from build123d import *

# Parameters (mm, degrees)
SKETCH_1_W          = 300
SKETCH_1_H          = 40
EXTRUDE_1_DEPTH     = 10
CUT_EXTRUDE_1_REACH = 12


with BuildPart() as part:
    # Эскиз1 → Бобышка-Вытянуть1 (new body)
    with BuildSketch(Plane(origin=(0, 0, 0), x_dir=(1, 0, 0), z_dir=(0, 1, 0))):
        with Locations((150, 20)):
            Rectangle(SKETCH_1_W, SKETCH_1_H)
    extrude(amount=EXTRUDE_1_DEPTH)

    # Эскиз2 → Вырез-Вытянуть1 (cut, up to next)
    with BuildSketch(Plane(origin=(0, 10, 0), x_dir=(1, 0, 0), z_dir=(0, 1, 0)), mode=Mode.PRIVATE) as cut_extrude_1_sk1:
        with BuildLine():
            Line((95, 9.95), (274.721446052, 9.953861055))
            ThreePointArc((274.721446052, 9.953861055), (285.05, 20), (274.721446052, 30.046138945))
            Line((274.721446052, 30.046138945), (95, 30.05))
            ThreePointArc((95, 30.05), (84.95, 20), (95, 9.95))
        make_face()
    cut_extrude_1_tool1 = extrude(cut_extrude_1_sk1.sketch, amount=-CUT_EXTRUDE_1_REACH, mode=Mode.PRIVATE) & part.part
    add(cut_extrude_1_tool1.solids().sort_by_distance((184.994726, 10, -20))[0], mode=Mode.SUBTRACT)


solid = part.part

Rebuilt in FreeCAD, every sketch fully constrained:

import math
import FreeCAD as App
import Part
import Sketcher


def add_polygon(sketch, points):
    """Adds a closed chain of lines whose ends are joined by coincident constraints."""
    first, n = sketch.GeometryCount, len(points)
    for a, b in zip(points, points[1:] + points[:1]):
        sketch.addGeometry(Part.LineSegment(App.Vector(*a, 0), App.Vector(*b, 0)), False)
    for i in range(n):
        sketch.addConstraint(Sketcher.Constraint("Coincident", first + i, 2, first + (i + 1) % n, 1))

doc = App.newDocument("Part")
body = doc.addObject("PartDesign::Body", "Body")

sketch1 = body.newObject("Sketcher::SketchObject", "Sketch")
sketch1.AttachmentSupport = (doc.getObject("XZ_Plane"), [""])
sketch1.MapMode = "FlatFace"
add_polygon(sketch1, [(0, -40), (0, 0), (300, 0), (300, -40)])
sketch1.addConstraint(Sketcher.Constraint("Vertical", 0))
sketch1.addConstraint(Sketcher.Constraint("Horizontal", 1))
sketch1.addConstraint(Sketcher.Constraint("Vertical", 2))
sketch1.addConstraint(Sketcher.Constraint("Horizontal", 3))
sketch1.addConstraint(Sketcher.Constraint("Coincident", 0, 2, -1, 1))
sketch1.addConstraint(Sketcher.Constraint("DistanceX", 1, 1, 1, 2, 300.0))
sketch1.addConstraint(Sketcher.Constraint("DistanceY", 0, 1, 0, 2, 40.0))
pad1 = body.newObject("PartDesign::Pad", "Pad")
pad1.Profile = sketch1
pad1.Length = 10
pad1.Reversed = True

sketch2 = body.newObject("Sketcher::SketchObject", "Sketch001")
sketch2.AttachmentSupport = (doc.getObject("XZ_Plane"), [""])
sketch2.MapMode = "FlatFace"
sketch2.AttachmentOffset = App.Placement(App.Vector(0, 0, -10), App.Rotation())
sketch2.addGeometry(Part.LineSegment(App.Vector(95, -10, 0), App.Vector(275, -10, 0)), False)
sketch2.addGeometry(Part.ArcOfCircle(Part.Circle(App.Vector(275, -20, 0), App.Vector(0, 0, 1), 10), math.radians(-92), math.radians(92)), False)
sketch2.addGeometry(Part.LineSegment(App.Vector(275, -30, 0), App.Vector(95, -30, 0)), False)
sketch2.addGeometry(Part.ArcOfCircle(Part.Circle(App.Vector(95, -20, 0), App.Vector(0, 0, 1), 10), math.radians(90), math.radians(270)), False)
sketch2.addConstraint(Sketcher.Constraint("Coincident", 0, 2, 1, 2))
sketch2.addConstraint(Sketcher.Constraint("Coincident", 1, 1, 2, 1))
sketch2.addConstraint(Sketcher.Constraint("Coincident", 2, 2, 3, 2))
sketch2.addConstraint(Sketcher.Constraint("Coincident", 3, 1, 0, 1))
sketch2.addConstraint(Sketcher.Constraint("Equal", 1, 3))
sketch2.addConstraint(Sketcher.Constraint("Horizontal", 1, 3, 3, 3))
sketch2.addConstraint(Sketcher.Constraint("Vertical", 0, 2, 1, 1))
sketch2.addConstraint(Sketcher.Constraint("Vertical", 3, 3, 2, 2))
sketch2.addConstraint(Sketcher.Constraint("Vertical", 2, 2, 3, 1))
sketch2.addConstraint(Sketcher.Constraint("Radius", 1, 10.05))
sketch2.addConstraint(Sketcher.Constraint("DistanceX", -1, 1, 1, 3, 275.0))
sketch2.addConstraint(Sketcher.Constraint("DistanceY", 1, 3, -1, 1, 20.0))
sketch2.addConstraint(Sketcher.Constraint("DistanceX", -1, 1, 3, 3, 95.0))
sketch2.addConstraint(Sketcher.Constraint("DistanceY", 0, 2, -1, 1, 9.953861))
pocket1 = body.newObject("PartDesign::Pocket", "Pocket")
pocket1.Profile = sketch2
pocket1.Type = "UpToFirst"
pocket1.Reversed = True

doc.recompute()
